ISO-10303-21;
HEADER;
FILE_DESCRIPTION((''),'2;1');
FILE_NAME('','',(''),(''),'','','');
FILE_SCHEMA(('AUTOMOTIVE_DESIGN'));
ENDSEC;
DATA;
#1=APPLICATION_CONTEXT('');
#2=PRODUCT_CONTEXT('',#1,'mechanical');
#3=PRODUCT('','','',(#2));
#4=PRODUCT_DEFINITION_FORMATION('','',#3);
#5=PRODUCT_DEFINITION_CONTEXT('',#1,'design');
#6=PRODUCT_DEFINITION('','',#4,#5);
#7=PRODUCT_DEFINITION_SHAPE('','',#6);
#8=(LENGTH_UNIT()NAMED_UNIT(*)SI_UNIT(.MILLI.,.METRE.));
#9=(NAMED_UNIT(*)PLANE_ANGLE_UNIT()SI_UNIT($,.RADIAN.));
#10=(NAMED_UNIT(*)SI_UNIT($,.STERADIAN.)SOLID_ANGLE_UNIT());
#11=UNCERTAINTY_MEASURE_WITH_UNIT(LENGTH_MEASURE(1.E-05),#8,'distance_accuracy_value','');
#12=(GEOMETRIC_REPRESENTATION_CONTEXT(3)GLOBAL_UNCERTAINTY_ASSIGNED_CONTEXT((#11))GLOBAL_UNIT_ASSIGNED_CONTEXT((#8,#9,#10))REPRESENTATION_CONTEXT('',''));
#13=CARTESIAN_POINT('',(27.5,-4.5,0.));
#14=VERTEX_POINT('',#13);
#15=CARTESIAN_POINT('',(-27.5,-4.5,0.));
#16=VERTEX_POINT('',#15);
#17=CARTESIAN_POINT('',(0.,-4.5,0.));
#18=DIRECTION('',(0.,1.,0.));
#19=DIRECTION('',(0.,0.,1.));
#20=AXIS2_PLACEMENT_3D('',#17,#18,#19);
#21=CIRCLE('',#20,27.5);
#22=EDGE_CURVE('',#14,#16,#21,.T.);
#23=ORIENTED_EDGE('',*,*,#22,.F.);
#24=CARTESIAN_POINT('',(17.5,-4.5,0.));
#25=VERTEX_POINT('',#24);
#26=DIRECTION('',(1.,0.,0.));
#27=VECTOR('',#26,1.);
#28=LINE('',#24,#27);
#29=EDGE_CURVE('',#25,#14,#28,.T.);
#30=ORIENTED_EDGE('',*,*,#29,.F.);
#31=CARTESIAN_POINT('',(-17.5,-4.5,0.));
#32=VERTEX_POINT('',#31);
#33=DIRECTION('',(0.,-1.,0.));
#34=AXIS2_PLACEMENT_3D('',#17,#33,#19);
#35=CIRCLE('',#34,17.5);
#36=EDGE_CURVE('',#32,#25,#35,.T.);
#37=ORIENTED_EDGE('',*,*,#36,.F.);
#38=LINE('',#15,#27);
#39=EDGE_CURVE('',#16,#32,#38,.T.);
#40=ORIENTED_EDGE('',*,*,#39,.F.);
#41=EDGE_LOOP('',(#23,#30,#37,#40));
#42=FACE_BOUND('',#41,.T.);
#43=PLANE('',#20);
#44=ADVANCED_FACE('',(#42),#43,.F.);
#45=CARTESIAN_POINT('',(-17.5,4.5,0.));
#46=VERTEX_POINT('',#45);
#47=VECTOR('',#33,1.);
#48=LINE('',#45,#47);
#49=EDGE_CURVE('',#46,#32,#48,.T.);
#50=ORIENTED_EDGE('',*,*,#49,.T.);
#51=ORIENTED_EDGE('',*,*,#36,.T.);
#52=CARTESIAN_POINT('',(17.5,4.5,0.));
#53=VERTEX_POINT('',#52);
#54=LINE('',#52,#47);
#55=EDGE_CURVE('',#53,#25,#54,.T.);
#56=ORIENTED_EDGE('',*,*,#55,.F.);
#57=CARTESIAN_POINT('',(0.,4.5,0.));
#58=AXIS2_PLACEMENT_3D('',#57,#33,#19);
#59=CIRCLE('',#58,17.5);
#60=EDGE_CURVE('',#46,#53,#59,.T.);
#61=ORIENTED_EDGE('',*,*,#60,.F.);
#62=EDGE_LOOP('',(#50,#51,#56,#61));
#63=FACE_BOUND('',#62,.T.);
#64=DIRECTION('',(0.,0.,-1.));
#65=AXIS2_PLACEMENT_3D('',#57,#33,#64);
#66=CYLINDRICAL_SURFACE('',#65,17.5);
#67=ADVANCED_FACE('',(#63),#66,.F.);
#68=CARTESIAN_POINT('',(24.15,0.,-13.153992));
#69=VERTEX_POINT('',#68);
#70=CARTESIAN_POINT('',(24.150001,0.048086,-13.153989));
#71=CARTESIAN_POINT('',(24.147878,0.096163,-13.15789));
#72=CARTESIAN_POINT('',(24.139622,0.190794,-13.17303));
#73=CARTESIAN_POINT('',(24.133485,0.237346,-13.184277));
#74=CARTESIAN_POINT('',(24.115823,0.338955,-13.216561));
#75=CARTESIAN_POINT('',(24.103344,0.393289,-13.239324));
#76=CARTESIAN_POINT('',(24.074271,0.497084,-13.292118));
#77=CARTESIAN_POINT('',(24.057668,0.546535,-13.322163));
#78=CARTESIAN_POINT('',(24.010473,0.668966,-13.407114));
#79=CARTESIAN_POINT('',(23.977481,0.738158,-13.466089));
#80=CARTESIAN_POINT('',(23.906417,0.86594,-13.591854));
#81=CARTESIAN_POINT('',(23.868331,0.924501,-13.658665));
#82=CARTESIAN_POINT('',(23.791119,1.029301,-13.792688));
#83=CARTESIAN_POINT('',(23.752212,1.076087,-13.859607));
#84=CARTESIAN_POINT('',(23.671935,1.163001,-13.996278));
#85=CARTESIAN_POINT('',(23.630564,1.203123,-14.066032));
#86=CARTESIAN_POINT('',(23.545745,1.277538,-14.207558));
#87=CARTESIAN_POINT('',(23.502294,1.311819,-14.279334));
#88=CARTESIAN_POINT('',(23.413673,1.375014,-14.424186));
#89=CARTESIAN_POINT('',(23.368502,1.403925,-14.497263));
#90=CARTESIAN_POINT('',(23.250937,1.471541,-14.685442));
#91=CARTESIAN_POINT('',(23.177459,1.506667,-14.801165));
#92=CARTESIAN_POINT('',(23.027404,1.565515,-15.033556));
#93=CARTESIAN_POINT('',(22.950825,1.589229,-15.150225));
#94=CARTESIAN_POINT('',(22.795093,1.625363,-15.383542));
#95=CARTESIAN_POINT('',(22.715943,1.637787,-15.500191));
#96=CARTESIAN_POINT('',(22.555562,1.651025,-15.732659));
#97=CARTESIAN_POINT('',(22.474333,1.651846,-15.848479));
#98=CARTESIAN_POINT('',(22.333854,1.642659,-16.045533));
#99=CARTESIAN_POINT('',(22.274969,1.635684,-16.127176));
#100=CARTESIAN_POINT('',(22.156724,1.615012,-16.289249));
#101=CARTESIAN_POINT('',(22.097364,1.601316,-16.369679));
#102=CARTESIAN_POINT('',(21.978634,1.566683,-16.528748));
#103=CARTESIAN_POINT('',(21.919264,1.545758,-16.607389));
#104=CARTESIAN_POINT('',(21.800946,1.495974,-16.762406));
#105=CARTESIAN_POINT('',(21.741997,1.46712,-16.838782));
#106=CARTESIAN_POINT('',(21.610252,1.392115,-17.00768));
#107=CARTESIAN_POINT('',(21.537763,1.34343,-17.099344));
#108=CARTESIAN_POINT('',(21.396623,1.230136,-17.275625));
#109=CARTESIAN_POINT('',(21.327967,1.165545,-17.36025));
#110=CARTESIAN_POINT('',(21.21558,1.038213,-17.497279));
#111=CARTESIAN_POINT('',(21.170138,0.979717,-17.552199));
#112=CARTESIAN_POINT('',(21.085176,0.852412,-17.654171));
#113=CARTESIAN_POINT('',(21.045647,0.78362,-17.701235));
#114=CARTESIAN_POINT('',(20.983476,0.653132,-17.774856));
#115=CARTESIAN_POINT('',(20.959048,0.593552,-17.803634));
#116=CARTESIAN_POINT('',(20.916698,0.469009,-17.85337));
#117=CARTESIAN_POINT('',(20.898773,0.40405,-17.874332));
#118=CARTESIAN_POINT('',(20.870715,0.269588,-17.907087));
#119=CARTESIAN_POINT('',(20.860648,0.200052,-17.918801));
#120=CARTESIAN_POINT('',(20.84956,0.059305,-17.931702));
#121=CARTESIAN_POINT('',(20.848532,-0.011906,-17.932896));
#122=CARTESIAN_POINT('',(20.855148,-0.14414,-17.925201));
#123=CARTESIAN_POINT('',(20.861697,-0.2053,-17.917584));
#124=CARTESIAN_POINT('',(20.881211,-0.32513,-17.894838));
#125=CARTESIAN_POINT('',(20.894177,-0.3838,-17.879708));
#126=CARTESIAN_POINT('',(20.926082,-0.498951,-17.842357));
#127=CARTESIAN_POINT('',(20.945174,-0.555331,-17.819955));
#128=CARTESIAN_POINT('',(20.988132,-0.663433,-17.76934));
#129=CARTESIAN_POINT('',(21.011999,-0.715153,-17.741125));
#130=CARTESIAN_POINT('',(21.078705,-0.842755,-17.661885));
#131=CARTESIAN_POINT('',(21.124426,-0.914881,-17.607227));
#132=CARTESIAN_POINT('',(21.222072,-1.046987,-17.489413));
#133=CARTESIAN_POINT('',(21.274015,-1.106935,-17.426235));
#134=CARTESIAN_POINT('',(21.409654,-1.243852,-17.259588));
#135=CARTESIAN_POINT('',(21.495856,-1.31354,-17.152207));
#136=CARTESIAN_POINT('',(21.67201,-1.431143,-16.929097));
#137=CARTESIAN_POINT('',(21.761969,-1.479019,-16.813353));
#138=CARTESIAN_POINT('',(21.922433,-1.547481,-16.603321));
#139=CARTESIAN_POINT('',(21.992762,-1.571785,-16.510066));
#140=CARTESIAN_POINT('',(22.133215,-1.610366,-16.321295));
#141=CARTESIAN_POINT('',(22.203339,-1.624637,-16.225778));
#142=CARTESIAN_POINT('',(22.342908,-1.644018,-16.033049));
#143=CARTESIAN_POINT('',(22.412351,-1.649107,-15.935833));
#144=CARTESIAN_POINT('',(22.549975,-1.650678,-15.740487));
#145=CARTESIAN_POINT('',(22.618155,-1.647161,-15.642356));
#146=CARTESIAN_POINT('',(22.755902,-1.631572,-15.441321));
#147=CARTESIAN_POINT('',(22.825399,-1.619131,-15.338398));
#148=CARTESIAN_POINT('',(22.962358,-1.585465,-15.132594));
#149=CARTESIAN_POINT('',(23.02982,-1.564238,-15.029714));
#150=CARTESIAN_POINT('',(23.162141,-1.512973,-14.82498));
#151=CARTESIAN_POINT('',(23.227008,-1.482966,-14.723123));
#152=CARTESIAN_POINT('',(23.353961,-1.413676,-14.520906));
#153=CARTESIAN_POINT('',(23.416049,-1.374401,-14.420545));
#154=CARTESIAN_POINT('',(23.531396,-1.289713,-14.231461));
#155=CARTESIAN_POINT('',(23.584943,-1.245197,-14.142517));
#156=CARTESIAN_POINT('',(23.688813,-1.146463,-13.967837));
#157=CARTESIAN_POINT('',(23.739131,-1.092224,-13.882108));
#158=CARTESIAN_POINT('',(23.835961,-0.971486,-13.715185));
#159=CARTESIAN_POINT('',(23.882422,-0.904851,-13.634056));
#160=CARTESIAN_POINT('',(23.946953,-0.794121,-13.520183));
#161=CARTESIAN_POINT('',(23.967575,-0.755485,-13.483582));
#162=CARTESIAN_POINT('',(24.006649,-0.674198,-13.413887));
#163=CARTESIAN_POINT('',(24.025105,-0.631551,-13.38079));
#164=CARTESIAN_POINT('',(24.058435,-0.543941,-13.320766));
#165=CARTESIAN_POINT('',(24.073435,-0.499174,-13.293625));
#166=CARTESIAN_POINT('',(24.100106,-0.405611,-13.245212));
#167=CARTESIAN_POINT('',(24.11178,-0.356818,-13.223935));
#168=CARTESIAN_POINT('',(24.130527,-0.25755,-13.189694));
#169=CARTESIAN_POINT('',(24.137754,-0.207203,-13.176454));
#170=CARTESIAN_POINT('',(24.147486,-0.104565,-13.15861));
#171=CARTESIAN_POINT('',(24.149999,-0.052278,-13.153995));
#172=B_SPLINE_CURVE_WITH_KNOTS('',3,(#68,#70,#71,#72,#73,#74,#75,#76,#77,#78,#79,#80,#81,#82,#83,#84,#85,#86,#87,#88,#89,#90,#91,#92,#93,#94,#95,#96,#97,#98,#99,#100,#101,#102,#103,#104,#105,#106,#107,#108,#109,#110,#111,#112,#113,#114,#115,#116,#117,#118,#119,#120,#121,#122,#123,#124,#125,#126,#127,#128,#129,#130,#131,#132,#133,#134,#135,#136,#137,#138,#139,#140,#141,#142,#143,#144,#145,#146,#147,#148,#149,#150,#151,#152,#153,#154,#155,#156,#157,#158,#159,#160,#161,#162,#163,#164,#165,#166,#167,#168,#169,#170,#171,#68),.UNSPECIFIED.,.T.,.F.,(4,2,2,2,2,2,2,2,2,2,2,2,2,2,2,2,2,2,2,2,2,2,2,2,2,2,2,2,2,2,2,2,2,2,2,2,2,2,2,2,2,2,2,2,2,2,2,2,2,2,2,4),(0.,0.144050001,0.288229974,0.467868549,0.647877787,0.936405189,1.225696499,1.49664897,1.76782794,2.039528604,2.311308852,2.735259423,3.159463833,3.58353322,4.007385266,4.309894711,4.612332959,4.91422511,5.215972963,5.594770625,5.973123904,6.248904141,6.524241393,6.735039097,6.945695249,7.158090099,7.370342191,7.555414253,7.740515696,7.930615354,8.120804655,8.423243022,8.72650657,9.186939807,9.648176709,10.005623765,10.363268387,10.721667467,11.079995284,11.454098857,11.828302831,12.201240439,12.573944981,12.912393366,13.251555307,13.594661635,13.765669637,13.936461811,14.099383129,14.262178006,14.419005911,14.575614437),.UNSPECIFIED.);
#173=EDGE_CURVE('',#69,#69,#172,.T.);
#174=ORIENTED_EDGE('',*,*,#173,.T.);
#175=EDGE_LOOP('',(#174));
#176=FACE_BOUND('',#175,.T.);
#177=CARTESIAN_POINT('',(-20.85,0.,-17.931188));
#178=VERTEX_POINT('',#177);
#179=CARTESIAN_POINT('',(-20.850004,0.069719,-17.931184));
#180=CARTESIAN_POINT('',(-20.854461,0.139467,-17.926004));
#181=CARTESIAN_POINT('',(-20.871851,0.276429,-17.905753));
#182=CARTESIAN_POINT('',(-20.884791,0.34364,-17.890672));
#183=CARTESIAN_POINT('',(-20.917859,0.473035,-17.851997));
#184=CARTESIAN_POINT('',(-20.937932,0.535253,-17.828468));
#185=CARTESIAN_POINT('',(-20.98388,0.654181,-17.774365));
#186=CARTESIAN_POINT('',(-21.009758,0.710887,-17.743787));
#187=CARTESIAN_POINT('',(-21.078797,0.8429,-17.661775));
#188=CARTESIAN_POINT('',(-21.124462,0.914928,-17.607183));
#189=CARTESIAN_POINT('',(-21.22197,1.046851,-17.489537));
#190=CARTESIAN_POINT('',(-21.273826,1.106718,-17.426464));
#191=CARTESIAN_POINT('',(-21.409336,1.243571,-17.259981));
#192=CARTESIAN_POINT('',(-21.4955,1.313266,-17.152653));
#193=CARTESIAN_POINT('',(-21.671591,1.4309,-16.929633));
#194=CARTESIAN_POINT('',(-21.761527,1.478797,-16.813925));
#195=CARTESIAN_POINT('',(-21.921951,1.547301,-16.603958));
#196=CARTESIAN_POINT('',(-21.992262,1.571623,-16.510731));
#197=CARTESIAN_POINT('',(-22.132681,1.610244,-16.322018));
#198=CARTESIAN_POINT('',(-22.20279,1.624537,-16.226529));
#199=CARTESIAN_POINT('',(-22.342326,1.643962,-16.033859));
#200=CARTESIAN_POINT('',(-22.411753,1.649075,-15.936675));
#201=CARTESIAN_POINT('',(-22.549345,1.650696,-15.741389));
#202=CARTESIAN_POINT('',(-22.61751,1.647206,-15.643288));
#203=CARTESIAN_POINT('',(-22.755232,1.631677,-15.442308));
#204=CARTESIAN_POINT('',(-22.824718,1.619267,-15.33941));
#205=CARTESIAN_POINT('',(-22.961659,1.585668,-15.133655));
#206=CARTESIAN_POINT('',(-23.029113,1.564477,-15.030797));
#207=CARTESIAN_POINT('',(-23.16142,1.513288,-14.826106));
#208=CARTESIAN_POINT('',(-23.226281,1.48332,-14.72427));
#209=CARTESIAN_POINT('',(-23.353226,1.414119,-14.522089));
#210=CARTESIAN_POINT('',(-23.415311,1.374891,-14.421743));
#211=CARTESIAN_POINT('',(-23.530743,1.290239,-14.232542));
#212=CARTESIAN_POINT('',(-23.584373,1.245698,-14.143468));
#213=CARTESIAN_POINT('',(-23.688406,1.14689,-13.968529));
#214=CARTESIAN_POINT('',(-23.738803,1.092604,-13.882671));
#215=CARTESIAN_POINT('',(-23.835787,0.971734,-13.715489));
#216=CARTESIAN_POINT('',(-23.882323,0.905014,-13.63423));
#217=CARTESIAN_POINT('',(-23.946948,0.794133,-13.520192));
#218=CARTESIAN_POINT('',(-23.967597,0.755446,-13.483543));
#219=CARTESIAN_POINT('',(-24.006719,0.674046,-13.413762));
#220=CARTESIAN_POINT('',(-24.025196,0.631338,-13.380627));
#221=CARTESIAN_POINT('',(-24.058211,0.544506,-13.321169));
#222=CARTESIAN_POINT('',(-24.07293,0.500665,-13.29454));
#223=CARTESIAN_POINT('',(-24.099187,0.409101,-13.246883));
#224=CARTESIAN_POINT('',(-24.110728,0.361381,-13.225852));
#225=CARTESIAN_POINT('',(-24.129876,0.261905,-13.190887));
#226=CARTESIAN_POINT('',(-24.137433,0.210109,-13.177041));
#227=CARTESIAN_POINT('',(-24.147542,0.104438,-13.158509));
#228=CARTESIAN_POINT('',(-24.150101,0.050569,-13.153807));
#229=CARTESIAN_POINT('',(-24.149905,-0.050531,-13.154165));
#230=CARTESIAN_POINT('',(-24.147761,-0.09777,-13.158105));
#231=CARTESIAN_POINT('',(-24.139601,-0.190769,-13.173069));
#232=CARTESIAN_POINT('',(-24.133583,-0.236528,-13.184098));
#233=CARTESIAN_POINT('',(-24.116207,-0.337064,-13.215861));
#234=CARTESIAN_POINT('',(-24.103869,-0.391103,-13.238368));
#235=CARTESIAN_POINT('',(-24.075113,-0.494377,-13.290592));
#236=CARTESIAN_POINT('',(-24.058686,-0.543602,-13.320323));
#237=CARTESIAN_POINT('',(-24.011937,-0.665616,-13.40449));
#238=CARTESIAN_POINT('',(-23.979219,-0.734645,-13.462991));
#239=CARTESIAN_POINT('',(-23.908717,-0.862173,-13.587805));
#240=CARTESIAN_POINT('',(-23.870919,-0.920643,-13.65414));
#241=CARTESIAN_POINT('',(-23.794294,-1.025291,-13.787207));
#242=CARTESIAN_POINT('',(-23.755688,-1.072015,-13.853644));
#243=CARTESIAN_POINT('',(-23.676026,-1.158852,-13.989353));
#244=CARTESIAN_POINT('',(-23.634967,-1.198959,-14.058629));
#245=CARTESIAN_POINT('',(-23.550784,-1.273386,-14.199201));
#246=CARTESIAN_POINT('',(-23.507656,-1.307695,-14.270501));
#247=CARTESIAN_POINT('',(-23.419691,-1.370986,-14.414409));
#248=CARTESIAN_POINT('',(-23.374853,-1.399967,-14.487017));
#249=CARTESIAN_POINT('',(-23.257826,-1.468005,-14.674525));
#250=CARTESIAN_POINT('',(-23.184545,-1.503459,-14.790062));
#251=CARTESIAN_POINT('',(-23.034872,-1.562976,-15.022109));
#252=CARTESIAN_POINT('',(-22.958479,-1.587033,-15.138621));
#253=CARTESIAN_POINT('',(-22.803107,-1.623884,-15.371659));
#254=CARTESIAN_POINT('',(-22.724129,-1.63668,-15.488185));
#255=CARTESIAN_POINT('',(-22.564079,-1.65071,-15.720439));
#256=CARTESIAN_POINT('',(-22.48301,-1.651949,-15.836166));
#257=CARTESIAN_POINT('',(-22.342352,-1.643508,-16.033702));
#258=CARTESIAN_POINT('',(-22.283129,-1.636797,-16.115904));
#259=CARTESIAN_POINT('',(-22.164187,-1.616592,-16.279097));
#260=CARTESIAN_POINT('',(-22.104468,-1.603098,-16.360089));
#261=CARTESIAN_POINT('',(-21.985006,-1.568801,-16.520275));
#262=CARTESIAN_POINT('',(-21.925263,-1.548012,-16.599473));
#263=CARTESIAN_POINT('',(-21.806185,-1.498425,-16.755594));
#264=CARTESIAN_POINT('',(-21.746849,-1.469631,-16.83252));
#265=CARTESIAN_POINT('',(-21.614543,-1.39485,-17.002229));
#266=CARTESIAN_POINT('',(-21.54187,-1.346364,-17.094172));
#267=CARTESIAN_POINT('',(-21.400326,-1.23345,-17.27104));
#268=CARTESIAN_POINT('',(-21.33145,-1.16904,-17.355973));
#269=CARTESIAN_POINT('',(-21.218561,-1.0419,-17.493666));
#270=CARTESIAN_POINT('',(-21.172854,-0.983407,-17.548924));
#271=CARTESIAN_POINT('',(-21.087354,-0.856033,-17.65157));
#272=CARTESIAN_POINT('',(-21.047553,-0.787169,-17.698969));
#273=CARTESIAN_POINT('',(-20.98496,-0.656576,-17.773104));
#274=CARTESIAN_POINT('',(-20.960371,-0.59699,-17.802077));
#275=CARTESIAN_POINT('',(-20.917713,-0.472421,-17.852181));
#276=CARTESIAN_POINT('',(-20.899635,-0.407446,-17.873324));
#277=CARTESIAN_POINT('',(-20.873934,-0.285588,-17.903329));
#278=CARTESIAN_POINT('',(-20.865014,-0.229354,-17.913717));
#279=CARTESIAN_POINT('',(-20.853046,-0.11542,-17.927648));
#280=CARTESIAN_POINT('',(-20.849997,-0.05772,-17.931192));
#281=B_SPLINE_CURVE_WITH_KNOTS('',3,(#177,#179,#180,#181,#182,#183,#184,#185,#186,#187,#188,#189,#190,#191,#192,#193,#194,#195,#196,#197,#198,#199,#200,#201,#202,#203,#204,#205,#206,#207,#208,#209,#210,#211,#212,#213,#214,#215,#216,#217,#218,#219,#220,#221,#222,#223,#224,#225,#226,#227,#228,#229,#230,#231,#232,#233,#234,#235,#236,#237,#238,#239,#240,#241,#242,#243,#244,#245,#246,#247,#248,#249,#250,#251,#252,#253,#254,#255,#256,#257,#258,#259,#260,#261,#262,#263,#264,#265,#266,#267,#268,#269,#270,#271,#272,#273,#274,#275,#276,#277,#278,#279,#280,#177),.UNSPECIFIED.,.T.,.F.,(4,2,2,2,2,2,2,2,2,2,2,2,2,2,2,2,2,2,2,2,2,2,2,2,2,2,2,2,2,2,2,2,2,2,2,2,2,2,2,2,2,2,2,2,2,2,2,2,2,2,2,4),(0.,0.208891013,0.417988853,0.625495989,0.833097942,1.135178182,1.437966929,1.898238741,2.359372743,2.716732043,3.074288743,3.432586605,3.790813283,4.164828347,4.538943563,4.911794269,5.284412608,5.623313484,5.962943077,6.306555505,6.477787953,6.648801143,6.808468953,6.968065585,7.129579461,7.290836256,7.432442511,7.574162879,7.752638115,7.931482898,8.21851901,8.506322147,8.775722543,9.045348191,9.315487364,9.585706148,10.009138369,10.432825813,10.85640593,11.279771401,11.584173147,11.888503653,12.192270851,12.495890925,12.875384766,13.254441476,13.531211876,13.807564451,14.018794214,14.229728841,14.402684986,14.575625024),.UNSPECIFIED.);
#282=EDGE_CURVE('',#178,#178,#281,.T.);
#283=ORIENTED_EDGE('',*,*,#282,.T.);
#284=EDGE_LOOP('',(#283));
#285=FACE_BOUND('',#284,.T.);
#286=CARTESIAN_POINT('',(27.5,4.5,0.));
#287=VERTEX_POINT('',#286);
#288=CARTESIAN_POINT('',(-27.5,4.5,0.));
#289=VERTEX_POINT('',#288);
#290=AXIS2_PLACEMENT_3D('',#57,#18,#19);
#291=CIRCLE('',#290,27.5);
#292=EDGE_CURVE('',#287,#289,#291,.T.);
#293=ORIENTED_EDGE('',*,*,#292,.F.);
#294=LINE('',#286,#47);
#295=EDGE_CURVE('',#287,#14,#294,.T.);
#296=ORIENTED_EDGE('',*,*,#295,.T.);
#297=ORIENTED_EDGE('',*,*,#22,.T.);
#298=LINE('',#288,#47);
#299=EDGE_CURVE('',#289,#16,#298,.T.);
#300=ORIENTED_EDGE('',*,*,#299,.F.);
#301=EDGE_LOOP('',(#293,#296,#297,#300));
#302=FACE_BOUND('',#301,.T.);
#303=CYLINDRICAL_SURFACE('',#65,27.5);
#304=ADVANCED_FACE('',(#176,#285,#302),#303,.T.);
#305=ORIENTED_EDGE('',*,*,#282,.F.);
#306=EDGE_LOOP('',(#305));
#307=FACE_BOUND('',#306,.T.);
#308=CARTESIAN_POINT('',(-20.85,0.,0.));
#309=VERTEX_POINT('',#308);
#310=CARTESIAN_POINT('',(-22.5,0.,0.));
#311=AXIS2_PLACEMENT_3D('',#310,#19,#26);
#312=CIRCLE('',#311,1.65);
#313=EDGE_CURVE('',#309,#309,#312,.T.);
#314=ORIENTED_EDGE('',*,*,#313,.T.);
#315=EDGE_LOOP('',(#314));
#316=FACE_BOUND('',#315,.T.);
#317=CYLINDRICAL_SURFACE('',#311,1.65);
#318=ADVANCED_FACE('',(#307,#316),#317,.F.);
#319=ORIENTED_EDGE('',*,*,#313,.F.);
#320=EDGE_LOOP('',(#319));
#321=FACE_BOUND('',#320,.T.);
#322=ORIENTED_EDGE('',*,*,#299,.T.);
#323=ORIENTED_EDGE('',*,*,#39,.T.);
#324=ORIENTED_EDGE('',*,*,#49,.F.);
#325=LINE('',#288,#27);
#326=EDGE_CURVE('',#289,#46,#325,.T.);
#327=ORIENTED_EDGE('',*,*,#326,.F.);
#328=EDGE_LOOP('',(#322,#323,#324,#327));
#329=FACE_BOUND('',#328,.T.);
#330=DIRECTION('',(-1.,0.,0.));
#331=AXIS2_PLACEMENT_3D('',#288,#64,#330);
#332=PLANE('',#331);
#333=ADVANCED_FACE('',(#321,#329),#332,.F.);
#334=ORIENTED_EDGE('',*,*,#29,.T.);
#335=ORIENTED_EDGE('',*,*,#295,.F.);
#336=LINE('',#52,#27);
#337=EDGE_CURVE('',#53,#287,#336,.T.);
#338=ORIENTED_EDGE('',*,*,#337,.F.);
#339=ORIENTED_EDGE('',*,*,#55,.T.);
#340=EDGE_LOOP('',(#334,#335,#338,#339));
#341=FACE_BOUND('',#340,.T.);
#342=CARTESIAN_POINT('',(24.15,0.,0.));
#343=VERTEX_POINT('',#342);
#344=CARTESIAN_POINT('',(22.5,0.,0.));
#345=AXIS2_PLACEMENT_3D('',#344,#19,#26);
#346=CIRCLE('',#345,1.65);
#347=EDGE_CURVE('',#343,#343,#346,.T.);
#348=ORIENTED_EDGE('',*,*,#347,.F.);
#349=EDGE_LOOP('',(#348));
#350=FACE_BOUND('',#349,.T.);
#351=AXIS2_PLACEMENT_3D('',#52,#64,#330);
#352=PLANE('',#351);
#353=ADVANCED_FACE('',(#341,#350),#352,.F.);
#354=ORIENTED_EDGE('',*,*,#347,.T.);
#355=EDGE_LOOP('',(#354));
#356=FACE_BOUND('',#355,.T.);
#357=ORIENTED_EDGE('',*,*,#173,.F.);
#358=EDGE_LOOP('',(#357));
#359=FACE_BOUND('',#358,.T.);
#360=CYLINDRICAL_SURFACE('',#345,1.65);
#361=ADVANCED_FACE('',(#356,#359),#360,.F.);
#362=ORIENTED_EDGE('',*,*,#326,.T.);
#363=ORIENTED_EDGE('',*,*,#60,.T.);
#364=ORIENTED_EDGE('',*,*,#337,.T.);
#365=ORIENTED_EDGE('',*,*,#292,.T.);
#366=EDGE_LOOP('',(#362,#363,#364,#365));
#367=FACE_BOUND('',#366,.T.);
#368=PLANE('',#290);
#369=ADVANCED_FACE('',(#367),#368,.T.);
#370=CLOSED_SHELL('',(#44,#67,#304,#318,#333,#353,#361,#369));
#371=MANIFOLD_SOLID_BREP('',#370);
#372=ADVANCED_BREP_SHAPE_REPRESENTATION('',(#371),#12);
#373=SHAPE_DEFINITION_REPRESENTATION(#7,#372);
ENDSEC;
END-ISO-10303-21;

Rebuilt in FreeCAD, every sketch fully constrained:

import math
import FreeCAD as App
import Part
import Sketcher

V = App.Vector

doc = App.newDocument("Part")
params = doc.addObject("Spreadsheet::Sheet", "Params")
for row, (alias, value) in enumerate([
    ("sketch1_radius", "17.5 mm"),
    ("sketch1_radius2", "27.5 mm"),
    ("pad1_length", "9 mm"),
    ("sketch2_diameter", "3.3 mm"),
    ("hole_diameter", "3.3 mm"),
], start=1):
    params.set(f"A{row}", alias)
    params.set(f"B{row}", "=" + value)
    params.setAlias(f"B{row}", alias)

body = doc.addObject("PartDesign::Body", "Body")

# Sketch on XZ plane
sketch1 = body.newObject("Sketcher::SketchObject", "Sketch")
sketch1.AttachmentSupport = (doc.getObject("XZ_Plane"), [""])
sketch1.MapMode = "FlatFace"
sketch1.addGeometry(Part.LineSegment(V(-28, 0, 0), V(-18, 0, 0)), False)
sketch1.addGeometry(Part.ArcOfCircle(Part.Circle(V(0, 0, 0), V(0, 0, 1), 18), math.radians(180), math.radians(360)), False)
sketch1.addGeometry(Part.LineSegment(V(18, 0, 0), V(28, 0, 0)), False)
sketch1.addGeometry(Part.ArcOfCircle(Part.Circle(V(0, 0, 0), V(0, 0, 1), 28), math.radians(180), math.radians(360)), False)
sketch1.addConstraint(Sketcher.Constraint("Coincident", 0, 2, 1, 1))
sketch1.addConstraint(Sketcher.Constraint("Coincident", 1, 2, 2, 1))
sketch1.addConstraint(Sketcher.Constraint("Coincident", 2, 2, 3, 2))
sketch1.addConstraint(Sketcher.Constraint("Coincident", 3, 1, 0, 1))
sketch1.addConstraint(Sketcher.Constraint("Horizontal", 0))
sketch1.addConstraint(Sketcher.Constraint("Horizontal", 2))
sketch1.addConstraint(Sketcher.Constraint("Coincident", 1, 3, -1, 1))
sketch1.addConstraint(Sketcher.Constraint("Coincident", 3, 3, -1, 1))
sketch1.addConstraint(Sketcher.Constraint("PointOnObject", 0, 2, -1))
sketch1.addConstraint(Sketcher.Constraint("PointOnObject", 1, 2, -1))
sketch1.addConstraint(Sketcher.Constraint("Radius", 1, 17.5))
sketch1.addConstraint(Sketcher.Constraint("Radius", 3, 27.5))
sketch1.setExpression("Constraints[10]", "Params.sketch1_radius")
sketch1.setExpression("Constraints[11]", "Params.sketch1_radius2")
pad1 = body.newObject("PartDesign::Pad", "Pad")
pad1.Profile = sketch1
pad1.setExpression("Length", "Params.pad1_length")
pad1.Midplane = True

# Sketch on XY plane
sketch2 = body.newObject("Sketcher::SketchObject", "Sketch001")
sketch2.AttachmentSupport = (doc.getObject("XY_Plane"), [""])
sketch2.MapMode = "FlatFace"
sketch2.addGeometry(Part.Circle(V(22.5, 0, 0), V(0, 0, 1), 1.6), False)
sketch2.addGeometry(Part.Circle(V(-22.5, 0, 0), V(0, 0, 1), 1.6), False)
sketch2.addConstraint(Sketcher.Constraint("Equal", 0, 1))
sketch2.addConstraint(Sketcher.Constraint("Symmetric", 0, 3, 1, 3, -1, 1))
sketch2.addConstraint(Sketcher.Constraint("PointOnObject", 0, 3, -1))
sketch2.addConstraint(Sketcher.Constraint("Diameter", 0, 3.3))
sketch2.addConstraint(Sketcher.Constraint("DistanceX", 1, 3, 0, 3, 45.0))
sketch2.setExpression("Constraints[3]", "Params.sketch2_diameter")
doc.recompute()
hole = body.newObject("PartDesign::Hole", "Hole")
hole.Profile = sketch2
hole.ThreadType = "None"
hole.setExpression("Diameter", "Params.hole_diameter")
hole.DepthType = "ThroughAll"

doc.recompute()
